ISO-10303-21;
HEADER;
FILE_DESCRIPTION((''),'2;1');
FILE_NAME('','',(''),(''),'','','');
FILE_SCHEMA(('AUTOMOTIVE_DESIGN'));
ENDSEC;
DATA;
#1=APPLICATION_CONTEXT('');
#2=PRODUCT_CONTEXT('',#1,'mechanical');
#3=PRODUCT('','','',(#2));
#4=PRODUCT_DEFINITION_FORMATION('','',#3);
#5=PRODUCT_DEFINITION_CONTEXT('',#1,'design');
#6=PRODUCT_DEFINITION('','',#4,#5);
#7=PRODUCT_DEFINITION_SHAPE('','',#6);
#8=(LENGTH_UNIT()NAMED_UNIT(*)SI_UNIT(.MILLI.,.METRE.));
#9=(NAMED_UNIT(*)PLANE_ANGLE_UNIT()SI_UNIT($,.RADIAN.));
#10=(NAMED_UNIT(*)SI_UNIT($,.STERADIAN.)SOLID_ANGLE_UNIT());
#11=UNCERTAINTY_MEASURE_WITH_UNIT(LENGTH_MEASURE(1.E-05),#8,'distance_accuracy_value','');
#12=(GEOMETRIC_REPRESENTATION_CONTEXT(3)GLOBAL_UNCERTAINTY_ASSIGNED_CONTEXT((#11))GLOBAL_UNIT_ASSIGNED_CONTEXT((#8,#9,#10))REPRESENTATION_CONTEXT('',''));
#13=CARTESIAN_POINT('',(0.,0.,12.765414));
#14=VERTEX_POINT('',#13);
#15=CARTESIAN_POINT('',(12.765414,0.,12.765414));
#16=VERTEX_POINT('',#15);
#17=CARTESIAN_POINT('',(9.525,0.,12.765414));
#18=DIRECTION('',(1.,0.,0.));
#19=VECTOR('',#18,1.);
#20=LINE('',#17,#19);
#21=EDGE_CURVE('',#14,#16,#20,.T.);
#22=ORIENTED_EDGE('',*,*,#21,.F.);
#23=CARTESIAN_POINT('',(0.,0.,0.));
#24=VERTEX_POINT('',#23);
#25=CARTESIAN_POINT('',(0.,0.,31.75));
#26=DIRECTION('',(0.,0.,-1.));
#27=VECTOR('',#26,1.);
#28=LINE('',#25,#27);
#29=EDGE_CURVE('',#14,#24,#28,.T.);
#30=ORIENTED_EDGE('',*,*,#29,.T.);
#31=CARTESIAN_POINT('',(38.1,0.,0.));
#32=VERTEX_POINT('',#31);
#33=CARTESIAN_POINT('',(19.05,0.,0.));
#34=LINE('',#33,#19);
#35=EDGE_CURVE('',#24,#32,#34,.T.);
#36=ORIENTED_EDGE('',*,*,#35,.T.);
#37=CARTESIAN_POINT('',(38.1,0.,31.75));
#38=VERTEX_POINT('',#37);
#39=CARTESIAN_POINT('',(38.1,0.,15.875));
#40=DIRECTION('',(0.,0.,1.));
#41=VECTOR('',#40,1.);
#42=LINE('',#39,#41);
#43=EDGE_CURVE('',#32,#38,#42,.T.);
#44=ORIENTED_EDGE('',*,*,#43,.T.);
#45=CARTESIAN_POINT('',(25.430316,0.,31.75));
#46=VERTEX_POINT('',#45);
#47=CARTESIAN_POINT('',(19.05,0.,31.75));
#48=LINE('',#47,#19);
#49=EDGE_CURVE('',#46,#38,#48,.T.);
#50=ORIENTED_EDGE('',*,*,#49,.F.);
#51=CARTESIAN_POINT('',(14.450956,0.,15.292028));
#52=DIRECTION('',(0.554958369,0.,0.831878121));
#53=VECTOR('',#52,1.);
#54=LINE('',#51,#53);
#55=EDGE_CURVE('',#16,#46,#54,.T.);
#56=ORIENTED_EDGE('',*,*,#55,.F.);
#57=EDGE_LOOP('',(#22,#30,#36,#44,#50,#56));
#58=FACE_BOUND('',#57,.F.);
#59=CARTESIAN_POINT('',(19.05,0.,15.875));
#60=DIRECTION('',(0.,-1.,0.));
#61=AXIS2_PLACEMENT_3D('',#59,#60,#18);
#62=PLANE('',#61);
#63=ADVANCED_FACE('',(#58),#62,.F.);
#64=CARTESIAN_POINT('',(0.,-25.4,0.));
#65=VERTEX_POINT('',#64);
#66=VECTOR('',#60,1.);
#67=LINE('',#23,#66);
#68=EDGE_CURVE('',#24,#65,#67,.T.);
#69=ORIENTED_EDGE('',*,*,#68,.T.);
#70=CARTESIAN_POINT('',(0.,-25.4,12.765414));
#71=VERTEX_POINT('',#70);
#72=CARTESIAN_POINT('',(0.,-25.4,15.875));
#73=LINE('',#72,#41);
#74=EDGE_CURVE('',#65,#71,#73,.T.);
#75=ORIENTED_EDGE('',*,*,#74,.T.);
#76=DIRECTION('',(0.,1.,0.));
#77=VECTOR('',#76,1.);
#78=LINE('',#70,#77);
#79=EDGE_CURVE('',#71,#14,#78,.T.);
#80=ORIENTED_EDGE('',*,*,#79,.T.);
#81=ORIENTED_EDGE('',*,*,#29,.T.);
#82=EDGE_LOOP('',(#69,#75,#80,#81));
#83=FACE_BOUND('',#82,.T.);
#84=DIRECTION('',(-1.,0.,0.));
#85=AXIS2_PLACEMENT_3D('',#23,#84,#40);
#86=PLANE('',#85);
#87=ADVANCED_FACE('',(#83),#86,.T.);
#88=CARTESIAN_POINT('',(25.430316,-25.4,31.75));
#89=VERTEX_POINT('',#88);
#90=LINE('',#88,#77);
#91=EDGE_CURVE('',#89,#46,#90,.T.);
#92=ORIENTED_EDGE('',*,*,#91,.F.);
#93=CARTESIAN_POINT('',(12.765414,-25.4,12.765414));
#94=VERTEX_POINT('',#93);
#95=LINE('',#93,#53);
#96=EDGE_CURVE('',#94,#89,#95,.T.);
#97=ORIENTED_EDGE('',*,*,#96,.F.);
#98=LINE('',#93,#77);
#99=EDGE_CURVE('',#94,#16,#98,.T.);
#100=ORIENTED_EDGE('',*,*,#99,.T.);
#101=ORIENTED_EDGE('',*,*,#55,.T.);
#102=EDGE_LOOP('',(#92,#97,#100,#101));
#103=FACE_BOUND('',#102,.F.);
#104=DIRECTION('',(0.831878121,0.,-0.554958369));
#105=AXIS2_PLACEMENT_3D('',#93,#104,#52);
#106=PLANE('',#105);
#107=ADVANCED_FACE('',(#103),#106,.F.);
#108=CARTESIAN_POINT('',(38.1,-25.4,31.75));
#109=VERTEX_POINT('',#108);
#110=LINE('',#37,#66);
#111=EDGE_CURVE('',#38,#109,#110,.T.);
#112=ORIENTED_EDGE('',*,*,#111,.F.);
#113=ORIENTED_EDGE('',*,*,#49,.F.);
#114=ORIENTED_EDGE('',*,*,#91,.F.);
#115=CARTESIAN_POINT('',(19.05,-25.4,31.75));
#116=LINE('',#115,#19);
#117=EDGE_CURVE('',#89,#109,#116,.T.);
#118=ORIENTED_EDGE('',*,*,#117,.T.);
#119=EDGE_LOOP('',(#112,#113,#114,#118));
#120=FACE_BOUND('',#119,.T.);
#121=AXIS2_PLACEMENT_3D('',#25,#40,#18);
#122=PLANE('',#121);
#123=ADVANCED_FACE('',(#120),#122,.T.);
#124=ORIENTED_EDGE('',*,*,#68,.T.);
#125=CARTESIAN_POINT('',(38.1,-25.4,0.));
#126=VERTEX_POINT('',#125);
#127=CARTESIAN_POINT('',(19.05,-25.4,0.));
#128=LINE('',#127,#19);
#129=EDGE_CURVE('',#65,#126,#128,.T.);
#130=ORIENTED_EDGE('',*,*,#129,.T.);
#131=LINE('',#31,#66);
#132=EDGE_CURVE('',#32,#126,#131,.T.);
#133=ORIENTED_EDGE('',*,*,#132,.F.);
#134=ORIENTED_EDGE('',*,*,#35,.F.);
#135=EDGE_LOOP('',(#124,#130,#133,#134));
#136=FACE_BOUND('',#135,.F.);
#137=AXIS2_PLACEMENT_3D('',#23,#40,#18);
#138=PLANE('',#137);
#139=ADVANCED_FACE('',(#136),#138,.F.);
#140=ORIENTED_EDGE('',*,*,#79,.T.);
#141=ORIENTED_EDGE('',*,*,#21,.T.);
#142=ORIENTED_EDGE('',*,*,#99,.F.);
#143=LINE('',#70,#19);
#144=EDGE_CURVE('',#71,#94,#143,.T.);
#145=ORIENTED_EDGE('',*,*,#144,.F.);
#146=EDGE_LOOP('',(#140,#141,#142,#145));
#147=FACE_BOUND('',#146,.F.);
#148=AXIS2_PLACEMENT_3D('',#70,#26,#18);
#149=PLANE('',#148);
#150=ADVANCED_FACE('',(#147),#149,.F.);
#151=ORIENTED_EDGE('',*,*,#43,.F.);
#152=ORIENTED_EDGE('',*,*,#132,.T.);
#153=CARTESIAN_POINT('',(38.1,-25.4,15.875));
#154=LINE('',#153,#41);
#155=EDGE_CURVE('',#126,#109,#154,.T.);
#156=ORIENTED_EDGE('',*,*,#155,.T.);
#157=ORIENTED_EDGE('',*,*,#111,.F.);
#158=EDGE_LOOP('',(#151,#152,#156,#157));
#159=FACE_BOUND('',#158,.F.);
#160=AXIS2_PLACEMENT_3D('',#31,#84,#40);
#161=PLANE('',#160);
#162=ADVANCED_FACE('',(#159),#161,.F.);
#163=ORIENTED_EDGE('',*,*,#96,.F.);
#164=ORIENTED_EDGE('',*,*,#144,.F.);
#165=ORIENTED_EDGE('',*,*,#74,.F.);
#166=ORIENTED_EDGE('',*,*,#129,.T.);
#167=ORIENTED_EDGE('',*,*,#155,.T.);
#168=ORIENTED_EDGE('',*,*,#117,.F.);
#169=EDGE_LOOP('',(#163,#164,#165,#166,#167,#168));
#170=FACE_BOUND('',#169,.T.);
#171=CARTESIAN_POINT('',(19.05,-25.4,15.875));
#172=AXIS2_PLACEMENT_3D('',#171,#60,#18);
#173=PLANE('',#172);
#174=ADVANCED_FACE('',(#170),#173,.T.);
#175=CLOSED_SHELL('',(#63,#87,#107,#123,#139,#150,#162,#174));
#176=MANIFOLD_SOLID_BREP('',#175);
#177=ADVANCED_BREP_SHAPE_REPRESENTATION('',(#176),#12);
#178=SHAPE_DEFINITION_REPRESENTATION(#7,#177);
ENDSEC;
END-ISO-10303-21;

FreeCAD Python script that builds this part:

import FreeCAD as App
import Part
import Sketcher
from FreeCAD import Vector
Q = App.Units.Quantity


def add_polygon(sketch, points):
    """Adds a closed chain of lines whose ends are joined by coincident constraints."""
    first, n = sketch.GeometryCount, len(points)
    for a, b in zip(points, points[1:] + points[:1]):
        sketch.addGeometry(Part.LineSegment(App.Vector(*a, 0), App.Vector(*b, 0)), False)
    for i in range(n):
        sketch.addConstraint(Sketcher.Constraint("Coincident", first + i, 2, first + (i + 1) % n, 1))

doc = App.newDocument("Part")
body = doc.addObject("PartDesign::Body", "Body")

# Sketch on XZ plane
sketch1 = body.newObject("Sketcher::SketchObject", "Sketch")
sketch1.AttachmentSupport = (doc.getObject("XZ_Plane"), [""])
sketch1.MapMode = "FlatFace"
add_polygon(sketch1, [(0, 32), (0, 0), (38, 0), (38, 32)])  # lines 0-3
sketch1.addConstraint([
    Sketcher.Constraint("Vertical", 0),
    Sketcher.Constraint("Horizontal", 1),
    Sketcher.Constraint("Vertical", 2),
    Sketcher.Constraint("Horizontal", 3),
    Sketcher.Constraint("Coincident", 0, 2, -1, 1),
    Sketcher.Constraint("DistanceX", 1, 1, 1, 2, Q("1.5 in")),
    Sketcher.Constraint("DistanceY", 0, 2, 0, 1, Q("1.25 in")),
])
pad1 = body.newObject("PartDesign::Pad", "Pad")
pad1.Profile = sketch1
pad1.Length = Q("1 in")

# Sketch on XZ plane
sketch2 = body.newObject("Sketcher::SketchObject", "Sketch001")
sketch2.AttachmentSupport = (doc.getObject("XZ_Plane"), [""])
sketch2.MapMode = "FlatFace"
add_polygon(sketch2, [(23, 8.3), (23, 31.3), (0, 12.6), (0, 8.3)])  # lines 0-3
sketch2.addConstraint([
    Sketcher.Constraint("Vertical", 0),
    Sketcher.Constraint("Vertical", 2),
    Sketcher.Constraint("Horizontal", 3),
    Sketcher.Constraint("PointOnObject", 1, 2, -2),
    Sketcher.Constraint("DistanceY", 0, 1, 0, 2, Q("22.917438 mm")),
    Sketcher.Constraint("Distance", 1, Q("29.653992 mm")),
    Sketcher.Constraint("DistanceX", 3, 1, 3, 2, Q("23.017952 mm")),
    Sketcher.Constraint("DistanceY", -1, 1, 0, 2, Q("31.260189 mm")),
])
pocket1 = body.newObject("PartDesign::Pocket", "Pocket")
pocket1.Profile = sketch2
pocket1.Length = Q("1 in")

# Sketch on XZ plane
sketch3 = body.newObject("Sketcher::SketchObject", "Sketch002")
sketch3.AttachmentSupport = (doc.getObject("XZ_Plane"), [""])
sketch3.MapMode = "FlatFace"
sketch3.AttachmentOffset = App.Placement(Vector(0, 0, 1 * 25.4), App.Rotation())
add_polygon(sketch3, [(0, 32), (0, 13), (13, 13), (25, 32)])  # lines 0-3
sketch3.addConstraint([
    Sketcher.Constraint("Vertical", 0),
    Sketcher.Constraint("Horizontal", 1),
    Sketcher.Constraint("Horizontal", 3),
    Sketcher.Constraint("PointOnObject", 0, 2, -2),
    Sketcher.Constraint("DistanceY", -1, 1, 2, 2, Q("1.25 in")),
    Sketcher.Constraint("DistanceX", 1, 1, 1, 2, Q("12.765414 mm")),
    Sketcher.Constraint("DistanceX", 3, 2, 3, 1, Q("25.430316 mm")),
    Sketcher.Constraint("DistanceY", 0, 2, 0, 1, Q("18.984586 mm")),
])
pocket2 = body.newObject("PartDesign::Pocket", "Pocket001")
pocket2.Profile = sketch3
pocket2.Type = "ThroughAll"

doc.recompute()
